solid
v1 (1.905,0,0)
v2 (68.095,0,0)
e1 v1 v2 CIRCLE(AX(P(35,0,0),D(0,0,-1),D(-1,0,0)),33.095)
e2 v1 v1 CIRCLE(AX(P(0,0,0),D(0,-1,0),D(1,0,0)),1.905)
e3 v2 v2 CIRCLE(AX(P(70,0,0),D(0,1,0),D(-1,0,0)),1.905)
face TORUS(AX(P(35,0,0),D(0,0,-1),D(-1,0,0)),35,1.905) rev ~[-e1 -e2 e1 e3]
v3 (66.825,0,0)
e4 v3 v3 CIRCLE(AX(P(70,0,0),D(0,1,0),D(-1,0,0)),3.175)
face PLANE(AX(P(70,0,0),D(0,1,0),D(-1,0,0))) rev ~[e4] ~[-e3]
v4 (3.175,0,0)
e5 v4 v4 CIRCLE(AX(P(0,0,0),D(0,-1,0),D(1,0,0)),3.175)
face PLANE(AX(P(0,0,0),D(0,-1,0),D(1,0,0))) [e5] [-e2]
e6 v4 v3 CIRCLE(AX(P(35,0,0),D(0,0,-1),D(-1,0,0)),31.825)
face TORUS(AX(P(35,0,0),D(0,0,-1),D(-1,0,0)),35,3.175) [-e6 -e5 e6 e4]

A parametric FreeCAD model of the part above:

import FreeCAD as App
import Part
import Sketcher
Q = App.Units.Quantity

doc = App.newDocument("Part")
body = doc.addObject("PartDesign::Body", "Body")

sketch1 = doc.addObject("Sketcher::SketchObject", "Sketch")
body.addObject(sketch1)
sketch1.AttachmentSupport = (doc.XZ_Plane, [""])
sketch1.MapMode = "FlatFace"
sketch1.addGeometry(Part.Circle(App.Vector(0, 0, 0), App.Vector(0, 0, 1), 3.2), False)
sketch1.addGeometry(Part.Circle(App.Vector(0, 0, 0), App.Vector(0, 0, 1), 1.9), False)
sketch1.addGeometry(Part.LineSegment(App.Vector(35, 0, 0), App.Vector(35, -10, 0)), True)
sketch1.addConstraint(Sketcher.Constraint("Vertical", 2))
sketch1.addConstraint(Sketcher.Constraint("Coincident", 0, 3, -1, 1))
sketch1.addConstraint(Sketcher.Constraint("Coincident", 1, 3, -1, 1))
sketch1.addConstraint(Sketcher.Constraint("PointOnObject", 2, 1, -1))
sketch1.addConstraint(Sketcher.Constraint("Diameter", 0, Q("0.25 in")))
sketch1.addConstraint(Sketcher.Constraint("Diameter", 1, Q("0.15 in")))
sketch1.addConstraint(Sketcher.Constraint("DistanceY", 2, 2, 2, 1, 10.0))
sketch1.addConstraint(Sketcher.Constraint("DistanceX", -1, 1, 2, 1, 35.0))
revolution = doc.addObject("PartDesign::Revolution", "Revolution")
body.addObject(revolution)
revolution.Profile = sketch1
revolution.ReferenceAxis = (sketch1, ["Axis0"])
revolution.Angle = 180

doc.recompute()
